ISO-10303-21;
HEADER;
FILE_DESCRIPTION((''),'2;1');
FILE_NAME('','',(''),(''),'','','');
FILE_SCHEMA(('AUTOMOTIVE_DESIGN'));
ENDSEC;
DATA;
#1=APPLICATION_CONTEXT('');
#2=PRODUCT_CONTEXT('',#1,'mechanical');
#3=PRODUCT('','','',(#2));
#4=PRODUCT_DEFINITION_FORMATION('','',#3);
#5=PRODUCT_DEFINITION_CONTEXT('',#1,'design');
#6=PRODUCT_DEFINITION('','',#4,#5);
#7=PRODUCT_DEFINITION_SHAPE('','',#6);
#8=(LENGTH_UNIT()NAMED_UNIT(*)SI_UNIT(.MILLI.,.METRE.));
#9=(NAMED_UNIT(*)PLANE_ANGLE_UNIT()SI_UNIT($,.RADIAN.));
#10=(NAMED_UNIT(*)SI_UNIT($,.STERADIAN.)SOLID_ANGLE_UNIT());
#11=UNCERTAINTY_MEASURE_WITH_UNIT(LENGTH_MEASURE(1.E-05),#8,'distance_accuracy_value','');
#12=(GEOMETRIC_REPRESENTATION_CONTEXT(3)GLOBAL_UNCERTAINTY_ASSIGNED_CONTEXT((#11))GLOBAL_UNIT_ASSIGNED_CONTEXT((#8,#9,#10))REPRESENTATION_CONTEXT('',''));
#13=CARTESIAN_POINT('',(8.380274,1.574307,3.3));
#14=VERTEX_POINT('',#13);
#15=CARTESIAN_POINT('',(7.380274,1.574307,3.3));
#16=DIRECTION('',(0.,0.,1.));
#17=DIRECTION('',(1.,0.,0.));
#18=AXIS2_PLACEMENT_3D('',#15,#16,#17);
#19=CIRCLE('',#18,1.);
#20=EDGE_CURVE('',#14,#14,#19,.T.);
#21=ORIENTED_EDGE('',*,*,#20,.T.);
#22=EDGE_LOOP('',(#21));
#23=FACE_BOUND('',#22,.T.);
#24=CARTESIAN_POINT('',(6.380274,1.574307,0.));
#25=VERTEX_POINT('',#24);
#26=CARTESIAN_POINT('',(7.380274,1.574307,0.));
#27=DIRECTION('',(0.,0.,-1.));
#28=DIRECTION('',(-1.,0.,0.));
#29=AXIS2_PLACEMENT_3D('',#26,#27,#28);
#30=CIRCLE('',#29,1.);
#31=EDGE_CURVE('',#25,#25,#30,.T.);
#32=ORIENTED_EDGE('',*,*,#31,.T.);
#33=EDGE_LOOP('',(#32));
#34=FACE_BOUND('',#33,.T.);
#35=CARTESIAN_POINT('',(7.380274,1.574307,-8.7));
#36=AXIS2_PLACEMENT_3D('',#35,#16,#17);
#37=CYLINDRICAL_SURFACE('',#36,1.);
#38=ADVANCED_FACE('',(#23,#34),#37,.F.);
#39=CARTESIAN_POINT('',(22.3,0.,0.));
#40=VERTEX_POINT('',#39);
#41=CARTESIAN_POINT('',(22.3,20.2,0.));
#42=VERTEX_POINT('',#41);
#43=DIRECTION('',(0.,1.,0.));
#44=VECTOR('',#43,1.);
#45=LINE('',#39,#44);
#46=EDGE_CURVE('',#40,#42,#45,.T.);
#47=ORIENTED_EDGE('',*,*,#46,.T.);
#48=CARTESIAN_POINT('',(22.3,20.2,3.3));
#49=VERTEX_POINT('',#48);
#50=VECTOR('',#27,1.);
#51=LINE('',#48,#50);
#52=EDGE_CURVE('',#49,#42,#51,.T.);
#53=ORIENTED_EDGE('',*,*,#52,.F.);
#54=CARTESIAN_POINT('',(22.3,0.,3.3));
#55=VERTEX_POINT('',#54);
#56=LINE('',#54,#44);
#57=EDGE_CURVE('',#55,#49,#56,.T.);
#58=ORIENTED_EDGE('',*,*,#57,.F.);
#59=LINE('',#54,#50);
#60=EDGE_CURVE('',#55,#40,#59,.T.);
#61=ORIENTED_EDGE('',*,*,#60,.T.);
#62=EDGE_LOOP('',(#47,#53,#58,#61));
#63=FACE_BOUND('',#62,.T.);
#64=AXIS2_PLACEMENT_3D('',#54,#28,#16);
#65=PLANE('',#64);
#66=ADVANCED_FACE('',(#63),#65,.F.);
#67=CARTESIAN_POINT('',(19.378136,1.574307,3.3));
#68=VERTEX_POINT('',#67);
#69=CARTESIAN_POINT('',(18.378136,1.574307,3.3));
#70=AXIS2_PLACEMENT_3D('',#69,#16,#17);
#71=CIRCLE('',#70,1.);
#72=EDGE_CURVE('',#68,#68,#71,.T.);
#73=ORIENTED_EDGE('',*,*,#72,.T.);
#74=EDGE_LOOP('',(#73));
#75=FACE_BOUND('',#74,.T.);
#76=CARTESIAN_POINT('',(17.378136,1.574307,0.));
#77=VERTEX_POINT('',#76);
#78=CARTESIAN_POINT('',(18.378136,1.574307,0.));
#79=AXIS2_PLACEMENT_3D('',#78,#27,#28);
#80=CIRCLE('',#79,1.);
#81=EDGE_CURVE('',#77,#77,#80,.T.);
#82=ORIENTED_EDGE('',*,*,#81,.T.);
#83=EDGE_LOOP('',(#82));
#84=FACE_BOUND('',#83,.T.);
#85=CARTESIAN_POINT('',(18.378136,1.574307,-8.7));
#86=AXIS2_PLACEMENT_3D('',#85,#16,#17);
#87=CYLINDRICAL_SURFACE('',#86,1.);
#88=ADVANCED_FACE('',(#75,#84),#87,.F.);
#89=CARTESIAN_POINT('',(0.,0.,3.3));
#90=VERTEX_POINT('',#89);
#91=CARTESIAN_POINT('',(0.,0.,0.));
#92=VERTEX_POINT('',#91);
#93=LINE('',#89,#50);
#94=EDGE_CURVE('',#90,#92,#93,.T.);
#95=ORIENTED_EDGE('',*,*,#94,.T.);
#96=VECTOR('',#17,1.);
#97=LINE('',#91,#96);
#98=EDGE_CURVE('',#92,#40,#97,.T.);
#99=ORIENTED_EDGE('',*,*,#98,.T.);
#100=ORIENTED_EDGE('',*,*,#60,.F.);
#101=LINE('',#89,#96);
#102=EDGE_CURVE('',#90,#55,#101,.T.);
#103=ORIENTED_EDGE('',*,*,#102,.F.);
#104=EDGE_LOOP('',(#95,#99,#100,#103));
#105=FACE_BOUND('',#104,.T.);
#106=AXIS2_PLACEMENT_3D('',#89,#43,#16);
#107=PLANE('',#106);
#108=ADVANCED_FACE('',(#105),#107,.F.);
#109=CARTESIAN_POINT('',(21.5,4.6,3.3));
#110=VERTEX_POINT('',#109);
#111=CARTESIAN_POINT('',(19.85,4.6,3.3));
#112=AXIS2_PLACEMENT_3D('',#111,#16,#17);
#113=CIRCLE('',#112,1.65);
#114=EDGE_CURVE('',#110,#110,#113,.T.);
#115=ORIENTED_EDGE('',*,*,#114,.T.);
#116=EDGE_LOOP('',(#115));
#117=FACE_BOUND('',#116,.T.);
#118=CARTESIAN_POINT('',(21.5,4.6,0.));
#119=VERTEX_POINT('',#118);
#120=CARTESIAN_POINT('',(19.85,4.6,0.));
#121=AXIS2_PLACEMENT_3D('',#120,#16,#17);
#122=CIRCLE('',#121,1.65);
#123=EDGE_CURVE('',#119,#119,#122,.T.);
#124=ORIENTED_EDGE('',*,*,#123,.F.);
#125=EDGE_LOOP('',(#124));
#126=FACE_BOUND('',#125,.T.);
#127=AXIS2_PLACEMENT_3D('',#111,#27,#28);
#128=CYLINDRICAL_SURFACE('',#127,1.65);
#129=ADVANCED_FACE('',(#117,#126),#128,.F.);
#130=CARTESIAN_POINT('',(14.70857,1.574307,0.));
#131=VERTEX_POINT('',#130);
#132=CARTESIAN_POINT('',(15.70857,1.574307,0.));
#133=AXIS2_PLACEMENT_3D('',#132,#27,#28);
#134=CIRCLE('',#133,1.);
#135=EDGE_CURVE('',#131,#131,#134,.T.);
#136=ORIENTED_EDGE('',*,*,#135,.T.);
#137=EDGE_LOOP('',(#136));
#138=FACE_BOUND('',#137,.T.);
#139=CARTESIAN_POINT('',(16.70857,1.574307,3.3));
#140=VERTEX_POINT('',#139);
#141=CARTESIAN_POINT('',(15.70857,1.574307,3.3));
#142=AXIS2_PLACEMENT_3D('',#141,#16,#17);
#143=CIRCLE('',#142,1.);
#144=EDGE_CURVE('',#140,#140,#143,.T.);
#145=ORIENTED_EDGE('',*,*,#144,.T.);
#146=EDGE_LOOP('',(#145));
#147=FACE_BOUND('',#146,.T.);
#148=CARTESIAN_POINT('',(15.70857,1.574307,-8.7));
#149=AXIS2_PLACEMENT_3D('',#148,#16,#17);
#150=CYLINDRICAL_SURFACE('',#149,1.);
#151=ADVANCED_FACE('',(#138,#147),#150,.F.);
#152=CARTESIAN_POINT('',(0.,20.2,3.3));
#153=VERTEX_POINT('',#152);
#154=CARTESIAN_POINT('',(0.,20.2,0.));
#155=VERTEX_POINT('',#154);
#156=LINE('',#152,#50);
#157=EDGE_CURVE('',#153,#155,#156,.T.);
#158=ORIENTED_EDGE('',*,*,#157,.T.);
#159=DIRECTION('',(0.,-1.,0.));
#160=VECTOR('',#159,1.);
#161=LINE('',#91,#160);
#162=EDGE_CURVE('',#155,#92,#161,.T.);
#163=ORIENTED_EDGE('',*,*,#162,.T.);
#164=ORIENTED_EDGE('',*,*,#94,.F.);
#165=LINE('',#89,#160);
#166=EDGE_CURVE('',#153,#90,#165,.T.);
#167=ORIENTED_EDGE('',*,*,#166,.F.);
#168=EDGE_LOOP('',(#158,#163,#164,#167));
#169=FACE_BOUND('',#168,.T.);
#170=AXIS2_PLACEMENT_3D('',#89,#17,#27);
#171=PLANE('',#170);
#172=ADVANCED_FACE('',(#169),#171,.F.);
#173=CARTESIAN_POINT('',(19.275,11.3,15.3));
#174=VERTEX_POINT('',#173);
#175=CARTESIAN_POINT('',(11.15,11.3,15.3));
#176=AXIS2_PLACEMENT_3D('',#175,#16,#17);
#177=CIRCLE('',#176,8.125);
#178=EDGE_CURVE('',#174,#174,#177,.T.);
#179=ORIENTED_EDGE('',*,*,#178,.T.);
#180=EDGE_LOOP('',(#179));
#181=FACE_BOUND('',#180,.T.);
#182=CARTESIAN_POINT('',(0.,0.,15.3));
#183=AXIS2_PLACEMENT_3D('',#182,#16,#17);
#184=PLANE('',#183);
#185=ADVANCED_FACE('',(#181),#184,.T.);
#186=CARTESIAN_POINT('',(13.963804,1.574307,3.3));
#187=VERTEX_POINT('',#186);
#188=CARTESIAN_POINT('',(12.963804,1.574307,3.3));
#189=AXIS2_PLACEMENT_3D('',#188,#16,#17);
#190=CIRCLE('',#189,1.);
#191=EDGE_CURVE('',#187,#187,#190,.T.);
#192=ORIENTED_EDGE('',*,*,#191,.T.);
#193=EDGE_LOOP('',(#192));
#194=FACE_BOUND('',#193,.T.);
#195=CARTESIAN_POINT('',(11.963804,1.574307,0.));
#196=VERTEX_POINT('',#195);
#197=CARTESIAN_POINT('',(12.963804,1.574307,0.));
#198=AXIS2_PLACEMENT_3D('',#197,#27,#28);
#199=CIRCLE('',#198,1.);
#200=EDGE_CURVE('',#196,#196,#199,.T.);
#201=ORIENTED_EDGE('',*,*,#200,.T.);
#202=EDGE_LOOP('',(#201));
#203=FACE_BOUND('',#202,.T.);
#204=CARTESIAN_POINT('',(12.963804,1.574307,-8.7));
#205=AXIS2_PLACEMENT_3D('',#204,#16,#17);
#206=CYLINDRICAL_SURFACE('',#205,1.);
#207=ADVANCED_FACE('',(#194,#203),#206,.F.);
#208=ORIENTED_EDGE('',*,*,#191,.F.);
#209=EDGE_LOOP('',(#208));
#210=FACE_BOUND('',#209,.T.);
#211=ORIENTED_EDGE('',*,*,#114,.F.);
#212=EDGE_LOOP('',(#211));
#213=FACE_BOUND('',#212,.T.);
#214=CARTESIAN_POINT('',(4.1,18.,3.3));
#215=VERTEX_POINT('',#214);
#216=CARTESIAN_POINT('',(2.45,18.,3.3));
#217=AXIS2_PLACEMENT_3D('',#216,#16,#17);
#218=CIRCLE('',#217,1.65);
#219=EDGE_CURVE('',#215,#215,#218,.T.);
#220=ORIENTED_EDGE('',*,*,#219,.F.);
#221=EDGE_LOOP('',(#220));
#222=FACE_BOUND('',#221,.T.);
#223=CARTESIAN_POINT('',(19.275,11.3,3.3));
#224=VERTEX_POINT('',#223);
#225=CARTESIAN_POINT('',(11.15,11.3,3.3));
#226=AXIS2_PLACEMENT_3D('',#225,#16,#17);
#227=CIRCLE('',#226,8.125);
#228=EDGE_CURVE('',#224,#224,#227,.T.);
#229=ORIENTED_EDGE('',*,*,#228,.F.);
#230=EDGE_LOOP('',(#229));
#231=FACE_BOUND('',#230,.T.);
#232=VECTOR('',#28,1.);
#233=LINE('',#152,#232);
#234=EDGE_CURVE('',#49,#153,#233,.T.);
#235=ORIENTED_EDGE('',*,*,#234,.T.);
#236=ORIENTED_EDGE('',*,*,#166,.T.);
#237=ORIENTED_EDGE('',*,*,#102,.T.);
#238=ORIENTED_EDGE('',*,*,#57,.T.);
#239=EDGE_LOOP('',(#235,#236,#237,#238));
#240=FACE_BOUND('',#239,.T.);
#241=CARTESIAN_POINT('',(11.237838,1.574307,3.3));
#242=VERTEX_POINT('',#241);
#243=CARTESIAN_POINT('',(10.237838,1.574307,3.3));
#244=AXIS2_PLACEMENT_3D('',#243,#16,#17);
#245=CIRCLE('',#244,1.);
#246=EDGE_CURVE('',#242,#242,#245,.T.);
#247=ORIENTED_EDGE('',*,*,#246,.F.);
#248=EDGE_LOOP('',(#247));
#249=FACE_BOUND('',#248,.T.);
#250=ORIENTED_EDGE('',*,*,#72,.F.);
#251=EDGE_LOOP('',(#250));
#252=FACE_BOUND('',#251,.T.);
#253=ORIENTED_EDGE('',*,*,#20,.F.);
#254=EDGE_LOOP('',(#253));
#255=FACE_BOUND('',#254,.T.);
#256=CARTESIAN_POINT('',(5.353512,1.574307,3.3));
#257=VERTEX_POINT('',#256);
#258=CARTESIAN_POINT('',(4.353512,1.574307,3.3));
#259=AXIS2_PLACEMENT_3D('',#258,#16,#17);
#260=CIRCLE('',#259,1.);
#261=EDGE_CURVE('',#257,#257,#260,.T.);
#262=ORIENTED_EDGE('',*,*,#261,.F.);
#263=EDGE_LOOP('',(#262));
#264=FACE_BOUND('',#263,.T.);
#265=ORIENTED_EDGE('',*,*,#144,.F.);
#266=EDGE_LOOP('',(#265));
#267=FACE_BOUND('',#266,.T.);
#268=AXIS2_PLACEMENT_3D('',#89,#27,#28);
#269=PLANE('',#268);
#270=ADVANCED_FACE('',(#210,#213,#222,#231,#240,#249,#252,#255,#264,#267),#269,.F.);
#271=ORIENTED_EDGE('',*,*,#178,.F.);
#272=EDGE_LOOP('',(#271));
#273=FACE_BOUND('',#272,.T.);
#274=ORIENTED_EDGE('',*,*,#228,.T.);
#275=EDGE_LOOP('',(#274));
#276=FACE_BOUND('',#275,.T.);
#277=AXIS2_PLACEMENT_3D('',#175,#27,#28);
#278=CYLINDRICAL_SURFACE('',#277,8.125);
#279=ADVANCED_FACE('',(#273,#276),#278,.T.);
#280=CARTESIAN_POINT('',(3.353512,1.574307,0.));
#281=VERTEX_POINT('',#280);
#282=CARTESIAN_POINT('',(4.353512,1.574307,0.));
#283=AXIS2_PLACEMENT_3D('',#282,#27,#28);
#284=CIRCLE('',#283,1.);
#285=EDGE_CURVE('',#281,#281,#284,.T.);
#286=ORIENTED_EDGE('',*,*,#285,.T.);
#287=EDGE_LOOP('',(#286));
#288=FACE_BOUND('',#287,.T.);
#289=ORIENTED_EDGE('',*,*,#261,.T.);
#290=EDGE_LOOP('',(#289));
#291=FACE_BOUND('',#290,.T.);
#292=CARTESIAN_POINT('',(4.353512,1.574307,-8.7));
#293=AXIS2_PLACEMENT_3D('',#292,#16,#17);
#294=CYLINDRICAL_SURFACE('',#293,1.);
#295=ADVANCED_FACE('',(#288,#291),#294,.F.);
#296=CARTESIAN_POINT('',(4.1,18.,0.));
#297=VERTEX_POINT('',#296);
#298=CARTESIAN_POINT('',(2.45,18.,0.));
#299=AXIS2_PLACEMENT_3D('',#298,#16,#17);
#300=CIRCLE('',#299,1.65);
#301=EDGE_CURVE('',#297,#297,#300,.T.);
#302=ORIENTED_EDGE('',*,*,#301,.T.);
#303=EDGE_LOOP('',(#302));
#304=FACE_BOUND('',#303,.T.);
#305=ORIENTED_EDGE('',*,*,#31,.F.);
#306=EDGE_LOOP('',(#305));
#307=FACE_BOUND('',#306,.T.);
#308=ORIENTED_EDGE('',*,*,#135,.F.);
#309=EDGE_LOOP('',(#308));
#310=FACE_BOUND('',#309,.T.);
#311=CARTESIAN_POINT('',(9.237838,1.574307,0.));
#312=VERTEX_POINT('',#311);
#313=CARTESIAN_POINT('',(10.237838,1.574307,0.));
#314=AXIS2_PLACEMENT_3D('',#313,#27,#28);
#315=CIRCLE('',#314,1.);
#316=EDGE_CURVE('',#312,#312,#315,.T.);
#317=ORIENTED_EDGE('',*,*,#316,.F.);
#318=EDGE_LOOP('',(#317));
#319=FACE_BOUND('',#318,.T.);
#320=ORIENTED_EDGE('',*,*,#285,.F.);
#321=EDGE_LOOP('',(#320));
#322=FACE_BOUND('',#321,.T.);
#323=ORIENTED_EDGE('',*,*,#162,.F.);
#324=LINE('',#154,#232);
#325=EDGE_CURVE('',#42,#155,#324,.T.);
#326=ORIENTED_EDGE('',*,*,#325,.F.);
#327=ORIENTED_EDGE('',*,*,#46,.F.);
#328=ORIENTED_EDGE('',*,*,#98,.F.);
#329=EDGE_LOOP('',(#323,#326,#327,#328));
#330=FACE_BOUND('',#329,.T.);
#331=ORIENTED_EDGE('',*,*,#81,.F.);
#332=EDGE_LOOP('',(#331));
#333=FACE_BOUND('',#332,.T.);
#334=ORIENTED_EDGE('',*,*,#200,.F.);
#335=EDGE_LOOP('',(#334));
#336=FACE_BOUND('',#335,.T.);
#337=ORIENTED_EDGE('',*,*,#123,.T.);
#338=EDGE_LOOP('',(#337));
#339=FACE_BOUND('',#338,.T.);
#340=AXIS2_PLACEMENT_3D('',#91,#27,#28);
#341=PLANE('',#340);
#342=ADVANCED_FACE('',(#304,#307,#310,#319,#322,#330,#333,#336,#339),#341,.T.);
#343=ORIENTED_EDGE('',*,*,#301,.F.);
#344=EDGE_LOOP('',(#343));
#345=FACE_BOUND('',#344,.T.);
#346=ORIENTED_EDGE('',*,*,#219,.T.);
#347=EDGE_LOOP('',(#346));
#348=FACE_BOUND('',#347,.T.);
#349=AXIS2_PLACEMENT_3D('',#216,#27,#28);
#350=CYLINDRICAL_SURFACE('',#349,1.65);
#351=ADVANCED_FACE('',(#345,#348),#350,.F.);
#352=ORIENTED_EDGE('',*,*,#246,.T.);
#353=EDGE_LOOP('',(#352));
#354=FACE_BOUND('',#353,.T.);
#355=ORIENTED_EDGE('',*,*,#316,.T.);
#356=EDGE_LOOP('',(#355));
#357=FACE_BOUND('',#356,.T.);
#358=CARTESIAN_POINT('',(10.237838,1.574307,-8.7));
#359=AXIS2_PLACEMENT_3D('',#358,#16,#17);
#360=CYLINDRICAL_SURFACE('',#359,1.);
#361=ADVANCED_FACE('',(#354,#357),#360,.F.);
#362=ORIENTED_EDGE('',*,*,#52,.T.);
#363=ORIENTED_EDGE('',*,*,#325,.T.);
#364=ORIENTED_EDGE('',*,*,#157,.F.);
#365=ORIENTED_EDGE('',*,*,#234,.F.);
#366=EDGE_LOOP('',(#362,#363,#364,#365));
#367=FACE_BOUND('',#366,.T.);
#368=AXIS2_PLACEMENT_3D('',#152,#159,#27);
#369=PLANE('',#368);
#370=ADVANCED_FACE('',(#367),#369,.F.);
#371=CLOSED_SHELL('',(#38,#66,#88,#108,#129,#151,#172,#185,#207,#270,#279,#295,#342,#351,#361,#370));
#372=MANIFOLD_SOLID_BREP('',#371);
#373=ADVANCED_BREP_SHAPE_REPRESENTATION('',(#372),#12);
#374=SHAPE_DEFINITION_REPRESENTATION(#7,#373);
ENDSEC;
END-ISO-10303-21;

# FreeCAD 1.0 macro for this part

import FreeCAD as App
import Part
import Sketcher

V = App.Vector
Q = App.Units.Quantity

doc = App.newDocument("Part")
params = doc.addObject("Spreadsheet::Sheet", "Params")
for row, (alias, value) in enumerate([
    ("sketch1_diameter", "3.3 mm"),
    ("sketch1_width", "22.3 mm"),
    ("sketch1_height", "20.2 mm"),
    ("pad1_length", "3.3 mm"),
    ("sketch2_diameter", "16.25 mm"),
    ("pad2_length", "12 mm"),
    ("sketch3_diameter", "2 mm"),
    ("pocket1_length", "12 mm"),
], start=1):
    params.set(f"A{row}", alias)
    params.set(f"B{row}", "=" + value)
    params.setAlias(f"B{row}", alias)

body = doc.addObject("PartDesign::Body", "Body")

# Sketch on XY plane
sketch1 = doc.addObject("Sketcher::SketchObject", "Sketch")
body.addObject(sketch1)
sketch1.AttachmentSupport = (doc.XY_Plane, [""])
sketch1.MapMode = "FlatFace"
sketch1.addGeometry(Part.LineSegment(V(0, 20.2, 0), V(0, 0, 0)), False)
sketch1.addGeometry(Part.LineSegment(V(0, 0, 0), V(22.3, 0, 0)), False)
sketch1.addGeometry(Part.LineSegment(V(22.3, 0, 0), V(22.3, 20.2, 0)), False)
sketch1.addGeometry(Part.LineSegment(V(22.3, 20.2, 0), V(0, 20.2, 0)), False)
sketch1.addGeometry(Part.Circle(V(19.9, 4.6, 0), V(0, 0, 1), 1.6), False)
sketch1.addGeometry(Part.Circle(V(2.5, 18, 0), V(0, 0, 1), 1.6), False)
sketch1.addConstraint(Sketcher.Constraint("Coincident", 0, 2, 1, 1))
sketch1.addConstraint(Sketcher.Constraint("Coincident", 1, 2, 2, 1))
sketch1.addConstraint(Sketcher.Constraint("Coincident", 2, 2, 3, 1))
sketch1.addConstraint(Sketcher.Constraint("Coincident", 3, 2, 0, 1))
sketch1.addConstraint(Sketcher.Constraint("Vertical", 0))
sketch1.addConstraint(Sketcher.Constraint("Horizontal", 1))
sketch1.addConstraint(Sketcher.Constraint("Vertical", 2))
sketch1.addConstraint(Sketcher.Constraint("Horizontal", 3))
sketch1.addConstraint(Sketcher.Constraint("Coincident", 0, 2, -1, 1))
sketch1.addConstraint(Sketcher.Constraint("Equal", 4, 5))
sketch1.addConstraint(Sketcher.Constraint("Diameter", 4, Q("3.3 mm")))
sketch1.addConstraint(Sketcher.Constraint("DistanceX", 1, 1, 1, 2, Q("22.3 mm")))
sketch1.addConstraint(Sketcher.Constraint("DistanceY", 0, 2, 0, 1, Q("20.2 mm")))
sketch1.addConstraint(Sketcher.Constraint("DistanceY", -1, 1, 5, 3, Q("18 mm")))
sketch1.addConstraint(Sketcher.Constraint("DistanceY", -1, 1, 4, 3, Q("4.6 mm")))
sketch1.addConstraint(Sketcher.Constraint("DistanceX", 5, 3, 4, 3, Q("17.4 mm")))
sketch1.addConstraint(Sketcher.Constraint("DistanceX", -1, 1, 4, 3, Q("19.85 mm")))
sketch1.setExpression("Constraints[10]", "Params.sketch1_diameter")
sketch1.setExpression("Constraints[11]", "Params.sketch1_width")
sketch1.setExpression("Constraints[12]", "Params.sketch1_height")
pad1 = doc.addObject("PartDesign::Pad", "Pad")
body.addObject(pad1)
pad1.Profile = sketch1
pad1.setExpression("Length", "Params.pad1_length")

# Sketch on XY plane
sketch2 = doc.addObject("Sketcher::SketchObject", "Sketch001")
body.addObject(sketch2)
sketch2.AttachmentSupport = (doc.XY_Plane, [""])
sketch2.MapMode = "FlatFace"
sketch2.AttachmentOffset = App.Placement(V(0, 0, 3.3), App.Rotation())
sketch2.addGeometry(Part.Circle(V(11, 11, 0), V(0, 0, 1), 8), False)
sketch2.addConstraint(Sketcher.Constraint("Diameter", 0, Q("16.25 mm")))
sketch2.addConstraint(Sketcher.Constraint("DistanceY", -1, 1, 0, 3, Q("11.3 mm")))
sketch2.addConstraint(Sketcher.Constraint("DistanceX", -1, 1, 0, 3, Q("11.15 mm")))
sketch2.setExpression("Constraints[0]", "Params.sketch2_diameter")
pad2 = doc.addObject("PartDesign::Pad", "Pad001")
body.addObject(pad2)
pad2.Profile = sketch2
pad2.setExpression("Length", "Params.pad2_length")

# Sketch on XY plane
sketch3 = doc.addObject("Sketcher::SketchObject", "Sketch002")
body.addObject(sketch3)
sketch3.AttachmentSupport = (doc.XY_Plane, [""])
sketch3.MapMode = "FlatFace"
sketch3.AttachmentOffset = App.Placement(V(0, 0, 3.3), App.Rotation())
sketch3.addGeometry(Part.Circle(V(4.4, 1.6, 0), V(0, 0, 1), 1), False)
sketch3.addGeometry(Part.Circle(V(7.4, 1.6, 0), V(0, 0, 1), 1), False)
sketch3.addGeometry(Part.Circle(V(10.2, 1.6, 0), V(0, 0, 1), 1), False)
sketch3.addGeometry(Part.Circle(V(13, 1.6, 0), V(0, 0, 1), 1), False)
sketch3.addGeometry(Part.Circle(V(15.7, 1.6, 0), V(0, 0, 1), 1), False)
sketch3.addGeometry(Part.Circle(V(18.4, 1.6, 0), V(0, 0, 1), 1), False)
sketch3.addConstraint(Sketcher.Constraint("Equal", 0, 1))
sketch3.addConstraint(Sketcher.Constraint("Equal", 1, 2))
sketch3.addConstraint(Sketcher.Constraint("Equal", 2, 3))
sketch3.addConstraint(Sketcher.Constraint("Equal", 3, 4))
sketch3.addConstraint(Sketcher.Constraint("Equal", 4, 5))
sketch3.addConstraint(Sketcher.Constraint("Horizontal", 0, 3, 1, 3))
sketch3.addConstraint(Sketcher.Constraint("Horizontal", 1, 3, 2, 3))
sketch3.addConstraint(Sketcher.Constraint("Horizontal", 2, 3, 3, 3))
sketch3.addConstraint(Sketcher.Constraint("Horizontal", 3, 3, 4, 3))
sketch3.addConstraint(Sketcher.Constraint("Horizontal", 4, 3, 5, 3))
sketch3.addConstraint(Sketcher.Constraint("Diameter", 0, Q("2 mm")))
sketch3.addConstraint(Sketcher.Constraint("DistanceX", 2, 3, 5, 3, Q("8.140298 mm")))
sketch3.addConstraint(Sketcher.Constraint("DistanceX", -1, 1, 0, 3, Q("4.353512 mm")))
sketch3.addConstraint(Sketcher.Constraint("DistanceX", -1, 1, 4, 3, Q("15.70857 mm")))
sketch3.addConstraint(Sketcher.Constraint("DistanceX", 1, 3, 3, 3, Q("5.58353 mm")))
sketch3.addConstraint(Sketcher.Constraint("DistanceX", 2, 3, 4, 3, Q("5.470732 mm")))
sketch3.addConstraint(Sketcher.Constraint("DistanceY", -1, 1, 0, 3, Q("1.574307 mm")))
sketch3.addConstraint(Sketcher.Constraint("DistanceX", -1, 1, 1, 3, Q("7.380274 mm")))
sketch3.setExpression("Constraints[10]", "Params.sketch3_diameter")
pocket1 = doc.addObject("PartDesign::Pocket", "Pocket")
body.addObject(pocket1)
pocket1.Profile = sketch3
pocket1.setExpression("Length", "Params.pocket1_length")

doc.recompute()
